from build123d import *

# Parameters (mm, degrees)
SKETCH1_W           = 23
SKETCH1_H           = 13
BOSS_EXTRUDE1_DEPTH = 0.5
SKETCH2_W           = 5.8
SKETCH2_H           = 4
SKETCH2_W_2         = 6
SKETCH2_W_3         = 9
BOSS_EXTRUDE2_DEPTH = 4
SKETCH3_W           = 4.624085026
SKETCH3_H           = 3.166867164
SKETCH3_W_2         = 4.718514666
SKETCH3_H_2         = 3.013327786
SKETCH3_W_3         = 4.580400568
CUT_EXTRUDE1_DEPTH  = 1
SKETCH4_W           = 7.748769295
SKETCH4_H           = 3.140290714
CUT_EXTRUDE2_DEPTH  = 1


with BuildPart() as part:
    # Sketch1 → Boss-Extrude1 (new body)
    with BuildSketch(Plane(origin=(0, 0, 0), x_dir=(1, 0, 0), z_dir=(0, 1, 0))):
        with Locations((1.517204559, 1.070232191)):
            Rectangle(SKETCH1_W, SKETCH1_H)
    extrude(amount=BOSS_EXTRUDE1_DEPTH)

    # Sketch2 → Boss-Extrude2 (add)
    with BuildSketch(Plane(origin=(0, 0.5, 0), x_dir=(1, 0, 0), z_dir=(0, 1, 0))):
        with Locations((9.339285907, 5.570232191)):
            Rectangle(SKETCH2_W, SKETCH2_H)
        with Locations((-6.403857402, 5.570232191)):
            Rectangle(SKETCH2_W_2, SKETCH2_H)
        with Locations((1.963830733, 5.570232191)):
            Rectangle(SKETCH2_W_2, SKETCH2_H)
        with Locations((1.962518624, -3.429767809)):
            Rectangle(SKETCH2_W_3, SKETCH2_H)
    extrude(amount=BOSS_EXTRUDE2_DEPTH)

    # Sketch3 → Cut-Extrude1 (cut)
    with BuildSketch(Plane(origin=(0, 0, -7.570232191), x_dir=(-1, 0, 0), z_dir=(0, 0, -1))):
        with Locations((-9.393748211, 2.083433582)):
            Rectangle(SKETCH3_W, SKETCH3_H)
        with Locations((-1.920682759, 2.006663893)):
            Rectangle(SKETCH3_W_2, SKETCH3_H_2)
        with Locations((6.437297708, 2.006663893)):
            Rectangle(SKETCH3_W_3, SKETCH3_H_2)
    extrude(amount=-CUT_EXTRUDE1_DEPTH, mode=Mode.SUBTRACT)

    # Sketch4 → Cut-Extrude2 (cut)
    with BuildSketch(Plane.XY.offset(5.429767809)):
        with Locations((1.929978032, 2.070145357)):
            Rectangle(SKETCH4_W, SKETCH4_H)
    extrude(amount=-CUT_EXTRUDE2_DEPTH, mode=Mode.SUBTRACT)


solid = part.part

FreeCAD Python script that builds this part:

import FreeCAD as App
import Part
import Sketcher
from FreeCAD import Vector

doc = App.newDocument("Part")
body = doc.addObject("PartDesign::Body", "Body")

# Sketch on XZ plane
sketch1 = doc.addObject("Sketcher::SketchObject", "Sketch")
body.addObject(sketch1)
sketch1.AttachmentSupport = (doc.XZ_Plane, [""])
sketch1.MapMode = "FlatFace"
sketch1.addGeometry([
    Part.LineSegment(Vector(-10, -8, 0), Vector(-10, 5, 0)),
    Part.LineSegment(Vector(-10, 5, 0), Vector(13, 5, 0)),
    Part.LineSegment(Vector(13, 5, 0), Vector(13, -8, 0)),
    Part.LineSegment(Vector(13, -8, 0), Vector(-10, -8, 0)),
], False)
sketch1.addConstraint([
    Sketcher.Constraint("Coincident", 0, 2, 1, 1),
    Sketcher.Constraint("Coincident", 1, 2, 2, 1),
    Sketcher.Constraint("Coincident", 2, 2, 3, 1),
    Sketcher.Constraint("Coincident", 3, 2, 0, 1),
    Sketcher.Constraint("Vertical", 0),
    Sketcher.Constraint("Horizontal", 1),
    Sketcher.Constraint("Vertical", 2),
    Sketcher.Constraint("Horizontal", 3),
    Sketcher.Constraint("DistanceX", 1, 1, 1, 2, 23.0),
    Sketcher.Constraint("DistanceY", 0, 1, 0, 2, 13.0),
    Sketcher.Constraint("DistanceX", 0, 2, -1, 1, 9.982795),
    Sketcher.Constraint("DistanceY", -1, 1, 0, 2, 5.429768),
])
pad1 = doc.addObject("PartDesign::Pad", "Pad")
body.addObject(pad1)
pad1.Profile = sketch1
pad1.Length = 0.5
pad1.Reversed = True

# Sketch on XZ plane
sketch2 = doc.addObject("Sketcher::SketchObject", "Sketch001")
body.addObject(sketch2)
sketch2.AttachmentSupport = (doc.XZ_Plane, [""])
sketch2.MapMode = "FlatFace"
sketch2.AttachmentOffset = App.Placement(Vector(0, 0, -0.5), App.Rotation())
sketch2.addGeometry([
    Part.LineSegment(Vector(6.4, -7.6, 0), Vector(6.4, -3.6, 0)),  # 0
    Part.LineSegment(Vector(6.4, -3.6, 0), Vector(12.2, -3.6, 0)),  # 1
    Part.LineSegment(Vector(12.2, -3.6, 0), Vector(12.2, -7.6, 0)),  # 2
    Part.LineSegment(Vector(12.2, -7.6, 0), Vector(6.4, -7.6, 0)),  # 3
    Part.LineSegment(Vector(-9.4, -7.6, 0), Vector(-9.4, -3.6, 0)),  # 4
    Part.LineSegment(Vector(-9.4, -3.6, 0), Vector(-3.4, -3.6, 0)),  # 5
    Part.LineSegment(Vector(-3.4, -3.6, 0), Vector(-3.4, -7.6, 0)),  # 6
    Part.LineSegment(Vector(-3.4, -7.6, 0), Vector(-9.4, -7.6, 0)),  # 7
    Part.LineSegment(Vector(-1, -7.6, 0), Vector(-1, -3.6, 0)),  # 8
    Part.LineSegment(Vector(-1, -3.6, 0), Vector(5, -3.6, 0)),  # 9
    Part.LineSegment(Vector(5, -3.6, 0), Vector(5, -7.6, 0)),  # 10
    Part.LineSegment(Vector(5, -7.6, 0), Vector(-1, -7.6, 0)),  # 11
    Part.LineSegment(Vector(-2.5, 1.4, 0), Vector(-2.5, 5.4, 0)),  # 12
    Part.LineSegment(Vector(-2.5, 5.4, 0), Vector(6.5, 5.4, 0)),  # 13
    Part.LineSegment(Vector(6.5, 5.4, 0), Vector(6.5, 1.4, 0)),  # 14
    Part.LineSegment(Vector(6.5, 1.4, 0), Vector(-2.5, 1.4, 0)),  # 15
], False)
sketch2.addConstraint([
    Sketcher.Constraint("Coincident", 0, 2, 1, 1),
    Sketcher.Constraint("Coincident", 1, 2, 2, 1),
    Sketcher.Constraint("Coincident", 2, 2, 3, 1),
    Sketcher.Constraint("Coincident", 3, 2, 0, 1),
    Sketcher.Constraint("Coincident", 4, 2, 5, 1),
    Sketcher.Constraint("Coincident", 5, 2, 6, 1),
    Sketcher.Constraint("Coincident", 6, 2, 7, 1),
    Sketcher.Constraint("Coincident", 7, 2, 4, 1),
    Sketcher.Constraint("Coincident", 8, 2, 9, 1),
    Sketcher.Constraint("Coincident", 9, 2, 10, 1),
    Sketcher.Constraint("Coincident", 10, 2, 11, 1),
    Sketcher.Constraint("Coincident", 11, 2, 8, 1),
    Sketcher.Constraint("Coincident", 12, 2, 13, 1),
    Sketcher.Constraint("Coincident", 13, 2, 14, 1),
    Sketcher.Constraint("Coincident", 14, 2, 15, 1),
    Sketcher.Constraint("Coincident", 15, 2, 12, 1),
    Sketcher.Constraint("Vertical", 0),
    Sketcher.Constraint("Horizontal", 1),
    Sketcher.Constraint("Vertical", 2),
    Sketcher.Constraint("Horizontal", 3),
    Sketcher.Constraint("Vertical", 4),
    Sketcher.Constraint("Horizontal", 5),
    Sketcher.Constraint("Vertical", 6),
    Sketcher.Constraint("Horizontal", 7),
    Sketcher.Constraint("Vertical", 8),
    Sketcher.Constraint("Horizontal", 9),
    Sketcher.Constraint("Vertical", 10),
    Sketcher.Constraint("Horizontal", 11),
    Sketcher.Constraint("Vertical", 12),
    Sketcher.Constraint("Horizontal", 13),
    Sketcher.Constraint("Vertical", 14),
    Sketcher.Constraint("Horizontal", 15),
    Sketcher.Constraint("Horizontal", 1, 2, 4, 2),
    Sketcher.Constraint("Horizontal", 3, 2, 6, 2),
    Sketcher.Constraint("Horizontal", 5, 2, 8, 2),
    Sketcher.Constraint("Horizontal", 7, 2, 10, 2),
    Sketcher.Constraint("Equal", 7, 9),
    Sketcher.Constraint("Equal", 10, 12),
    Sketcher.Constraint("DistanceX", 5, 1, 5, 2, 6.0),
    Sketcher.Constraint("DistanceX", 13, 1, 13, 2, 9.0),
    Sketcher.Constraint("DistanceY", 0, 1, 0, 2, 4.0),
    Sketcher.Constraint("DistanceX", 1, 1, 1, 2, 5.8),
    Sketcher.Constraint("DistanceY", 5, 2, 12, 2, 9.0),
    Sketcher.Constraint("DistanceX", 8, 2, -1, 1, 1.036169),
    Sketcher.Constraint("DistanceX", 12, 2, -1, 1, 2.537481),
    Sketcher.Constraint("DistanceX", 5, 2, 8, 2, 2.367688),
    Sketcher.Constraint("DistanceX", -1, 1, 0, 2, 6.439286),
    Sketcher.Constraint("DistanceY", 0, 2, -1, 1, 3.570232),
])
pad2 = doc.addObject("PartDesign::Pad", "Pad001")
body.addObject(pad2)
pad2.Profile = sketch2
pad2.Length = 4
pad2.Reversed = True

# Sketch on XY plane
sketch3 = doc.addObject("Sketcher::SketchObject", "Sketch002")
body.addObject(sketch3)
sketch3.AttachmentSupport = (doc.XY_Plane, [""])
sketch3.MapMode = "FlatFace"
sketch3.AttachmentOffset = App.Placement(Vector(0, 0, -7.570232), App.Rotation())
sketch3.addGeometry([
    Part.LineSegment(Vector(11.7, 3.7, 0), Vector(11.7, 0.5, 0)),  # 0
    Part.LineSegment(Vector(11.7, 0.5, 0), Vector(7.1, 0.5, 0)),  # 1
    Part.LineSegment(Vector(7.1, 0.5, 0), Vector(7.1, 3.7, 0)),  # 2
    Part.LineSegment(Vector(7.1, 3.7, 0), Vector(11.7, 3.7, 0)),  # 3
    Part.LineSegment(Vector(4.3, 3.5, 0), Vector(4.3, 0.5, 0)),  # 4
    Part.LineSegment(Vector(4.3, 0.5, 0), Vector(-0.4, 0.5, 0)),  # 5
    Part.LineSegment(Vector(-0.4, 0.5, 0), Vector(-0.4, 3.5, 0)),  # 6
    Part.LineSegment(Vector(-0.4, 3.5, 0), Vector(4.3, 3.5, 0)),  # 7
    Part.LineSegment(Vector(-4.1, 3.5, 0), Vector(-4.1, 0.5, 0)),  # 8
    Part.LineSegment(Vector(-4.1, 0.5, 0), Vector(-8.7, 0.5, 0)),  # 9
    Part.LineSegment(Vector(-8.7, 0.5, 0), Vector(-8.7, 3.5, 0)),  # 10
    Part.LineSegment(Vector(-8.7, 3.5, 0), Vector(-4.1, 3.5, 0)),  # 11
], False)
sketch3.addConstraint([
    Sketcher.Constraint("Coincident", 0, 2, 1, 1),
    Sketcher.Constraint("Coincident", 1, 2, 2, 1),
    Sketcher.Constraint("Coincident", 2, 2, 3, 1),
    Sketcher.Constraint("Coincident", 3, 2, 0, 1),
    Sketcher.Constraint("Coincident", 4, 2, 5, 1),
    Sketcher.Constraint("Coincident", 5, 2, 6, 1),
    Sketcher.Constraint("Coincident", 6, 2, 7, 1),
    Sketcher.Constraint("Coincident", 7, 2, 4, 1),
    Sketcher.Constraint("Coincident", 8, 2, 9, 1),
    Sketcher.Constraint("Coincident", 9, 2, 10, 1),
    Sketcher.Constraint("Coincident", 10, 2, 11, 1),
    Sketcher.Constraint("Coincident", 11, 2, 8, 1),
    Sketcher.Constraint("Vertical", 0),
    Sketcher.Constraint("Horizontal", 1),
    Sketcher.Constraint("Vertical", 2),
    Sketcher.Constraint("Horizontal", 3),
    Sketcher.Constraint("Vertical", 4),
    Sketcher.Constraint("Horizontal", 5),
    Sketcher.Constraint("Vertical", 6),
    Sketcher.Constraint("Horizontal", 7),
    Sketcher.Constraint("Vertical", 8),
    Sketcher.Constraint("Horizontal", 9),
    Sketcher.Constraint("Vertical", 10),
    Sketcher.Constraint("Horizontal", 11),
    Sketcher.Constraint("Horizontal", 1, 2, 4, 2),
    Sketcher.Constraint("Horizontal", 5, 2, 8, 2),
    Sketcher.Constraint("Horizontal", 7, 2, 10, 2),
    Sketcher.Constraint("DistanceY", -1, 1, 0, 2, 0.5),
    Sketcher.Constraint("DistanceX", 9, 2, 9, 1, 4.580401),
    Sketcher.Constraint("DistanceX", 1, 2, 1, 1, 4.624085),
    Sketcher.Constraint("DistanceX", 5, 2, 5, 1, 4.718515),
    Sketcher.Constraint("DistanceY", 0, 2, 0, 1, 3.166867),
    Sketcher.Constraint("DistanceY", 4, 2, 4, 1, 3.013328),
    Sketcher.Constraint("DistanceX", -1, 1, 0, 2, 11.705791),
    Sketcher.Constraint("DistanceX", -1, 1, 4, 2, 4.27994),
    Sketcher.Constraint("DistanceX", 9, 2, 4, 2, 13.007438),
])
pocket1 = doc.addObject("PartDesign::Pocket", "Pocket")
body.addObject(pocket1)
pocket1.Profile = sketch3
pocket1.Length = 1
pocket1.Reversed = True

# Sketch on XY plane
sketch4 = doc.addObject("Sketcher::SketchObject", "Sketch003")
body.addObject(sketch4)
sketch4.AttachmentSupport = (doc.XY_Plane, [""])
sketch4.MapMode = "FlatFace"
sketch4.AttachmentOffset = App.Placement(Vector(0, 0, 5.429768), App.Rotation())
sketch4.addGeometry([
    Part.LineSegment(Vector(-1.9, 3.6, 0), Vector(-1.9, 0.5, 0)),
    Part.LineSegment(Vector(-1.9, 0.5, 0), Vector(5.8, 0.5, 0)),
    Part.LineSegment(Vector(5.8, 0.5, 0), Vector(5.8, 3.6, 0)),
    Part.LineSegment(Vector(5.8, 3.6, 0), Vector(-1.9, 3.6, 0)),
], False)
sketch4.addConstraint([
    Sketcher.Constraint("Coincident", 0, 2, 1, 1),
    Sketcher.Constraint("Coincident", 1, 2, 2, 1),
    Sketcher.Constraint("Coincident", 2, 2, 3, 1),
    Sketcher.Constraint("Coincident", 3, 2, 0, 1),
    Sketcher.Constraint("Vertical", 0),
    Sketcher.Constraint("Horizontal", 1),
    Sketcher.Constraint("Vertical", 2),
    Sketcher.Constraint("Horizontal", 3),
    Sketcher.Constraint("DistanceY", -1, 1, 0, 2, 0.5),
    Sketcher.Constraint("DistanceX", 1, 1, 1, 2, 7.748769),
    Sketcher.Constraint("DistanceY", 0, 2, 0, 1, 3.140291),
    Sketcher.Constraint("DistanceX", 0, 2, -1, 1, 1.944407),
])
pocket2 = doc.addObject("PartDesign::Pocket", "Pocket001")
body.addObject(pocket2)
pocket2.Profile = sketch4
pocket2.Length = 1

doc.recompute()
